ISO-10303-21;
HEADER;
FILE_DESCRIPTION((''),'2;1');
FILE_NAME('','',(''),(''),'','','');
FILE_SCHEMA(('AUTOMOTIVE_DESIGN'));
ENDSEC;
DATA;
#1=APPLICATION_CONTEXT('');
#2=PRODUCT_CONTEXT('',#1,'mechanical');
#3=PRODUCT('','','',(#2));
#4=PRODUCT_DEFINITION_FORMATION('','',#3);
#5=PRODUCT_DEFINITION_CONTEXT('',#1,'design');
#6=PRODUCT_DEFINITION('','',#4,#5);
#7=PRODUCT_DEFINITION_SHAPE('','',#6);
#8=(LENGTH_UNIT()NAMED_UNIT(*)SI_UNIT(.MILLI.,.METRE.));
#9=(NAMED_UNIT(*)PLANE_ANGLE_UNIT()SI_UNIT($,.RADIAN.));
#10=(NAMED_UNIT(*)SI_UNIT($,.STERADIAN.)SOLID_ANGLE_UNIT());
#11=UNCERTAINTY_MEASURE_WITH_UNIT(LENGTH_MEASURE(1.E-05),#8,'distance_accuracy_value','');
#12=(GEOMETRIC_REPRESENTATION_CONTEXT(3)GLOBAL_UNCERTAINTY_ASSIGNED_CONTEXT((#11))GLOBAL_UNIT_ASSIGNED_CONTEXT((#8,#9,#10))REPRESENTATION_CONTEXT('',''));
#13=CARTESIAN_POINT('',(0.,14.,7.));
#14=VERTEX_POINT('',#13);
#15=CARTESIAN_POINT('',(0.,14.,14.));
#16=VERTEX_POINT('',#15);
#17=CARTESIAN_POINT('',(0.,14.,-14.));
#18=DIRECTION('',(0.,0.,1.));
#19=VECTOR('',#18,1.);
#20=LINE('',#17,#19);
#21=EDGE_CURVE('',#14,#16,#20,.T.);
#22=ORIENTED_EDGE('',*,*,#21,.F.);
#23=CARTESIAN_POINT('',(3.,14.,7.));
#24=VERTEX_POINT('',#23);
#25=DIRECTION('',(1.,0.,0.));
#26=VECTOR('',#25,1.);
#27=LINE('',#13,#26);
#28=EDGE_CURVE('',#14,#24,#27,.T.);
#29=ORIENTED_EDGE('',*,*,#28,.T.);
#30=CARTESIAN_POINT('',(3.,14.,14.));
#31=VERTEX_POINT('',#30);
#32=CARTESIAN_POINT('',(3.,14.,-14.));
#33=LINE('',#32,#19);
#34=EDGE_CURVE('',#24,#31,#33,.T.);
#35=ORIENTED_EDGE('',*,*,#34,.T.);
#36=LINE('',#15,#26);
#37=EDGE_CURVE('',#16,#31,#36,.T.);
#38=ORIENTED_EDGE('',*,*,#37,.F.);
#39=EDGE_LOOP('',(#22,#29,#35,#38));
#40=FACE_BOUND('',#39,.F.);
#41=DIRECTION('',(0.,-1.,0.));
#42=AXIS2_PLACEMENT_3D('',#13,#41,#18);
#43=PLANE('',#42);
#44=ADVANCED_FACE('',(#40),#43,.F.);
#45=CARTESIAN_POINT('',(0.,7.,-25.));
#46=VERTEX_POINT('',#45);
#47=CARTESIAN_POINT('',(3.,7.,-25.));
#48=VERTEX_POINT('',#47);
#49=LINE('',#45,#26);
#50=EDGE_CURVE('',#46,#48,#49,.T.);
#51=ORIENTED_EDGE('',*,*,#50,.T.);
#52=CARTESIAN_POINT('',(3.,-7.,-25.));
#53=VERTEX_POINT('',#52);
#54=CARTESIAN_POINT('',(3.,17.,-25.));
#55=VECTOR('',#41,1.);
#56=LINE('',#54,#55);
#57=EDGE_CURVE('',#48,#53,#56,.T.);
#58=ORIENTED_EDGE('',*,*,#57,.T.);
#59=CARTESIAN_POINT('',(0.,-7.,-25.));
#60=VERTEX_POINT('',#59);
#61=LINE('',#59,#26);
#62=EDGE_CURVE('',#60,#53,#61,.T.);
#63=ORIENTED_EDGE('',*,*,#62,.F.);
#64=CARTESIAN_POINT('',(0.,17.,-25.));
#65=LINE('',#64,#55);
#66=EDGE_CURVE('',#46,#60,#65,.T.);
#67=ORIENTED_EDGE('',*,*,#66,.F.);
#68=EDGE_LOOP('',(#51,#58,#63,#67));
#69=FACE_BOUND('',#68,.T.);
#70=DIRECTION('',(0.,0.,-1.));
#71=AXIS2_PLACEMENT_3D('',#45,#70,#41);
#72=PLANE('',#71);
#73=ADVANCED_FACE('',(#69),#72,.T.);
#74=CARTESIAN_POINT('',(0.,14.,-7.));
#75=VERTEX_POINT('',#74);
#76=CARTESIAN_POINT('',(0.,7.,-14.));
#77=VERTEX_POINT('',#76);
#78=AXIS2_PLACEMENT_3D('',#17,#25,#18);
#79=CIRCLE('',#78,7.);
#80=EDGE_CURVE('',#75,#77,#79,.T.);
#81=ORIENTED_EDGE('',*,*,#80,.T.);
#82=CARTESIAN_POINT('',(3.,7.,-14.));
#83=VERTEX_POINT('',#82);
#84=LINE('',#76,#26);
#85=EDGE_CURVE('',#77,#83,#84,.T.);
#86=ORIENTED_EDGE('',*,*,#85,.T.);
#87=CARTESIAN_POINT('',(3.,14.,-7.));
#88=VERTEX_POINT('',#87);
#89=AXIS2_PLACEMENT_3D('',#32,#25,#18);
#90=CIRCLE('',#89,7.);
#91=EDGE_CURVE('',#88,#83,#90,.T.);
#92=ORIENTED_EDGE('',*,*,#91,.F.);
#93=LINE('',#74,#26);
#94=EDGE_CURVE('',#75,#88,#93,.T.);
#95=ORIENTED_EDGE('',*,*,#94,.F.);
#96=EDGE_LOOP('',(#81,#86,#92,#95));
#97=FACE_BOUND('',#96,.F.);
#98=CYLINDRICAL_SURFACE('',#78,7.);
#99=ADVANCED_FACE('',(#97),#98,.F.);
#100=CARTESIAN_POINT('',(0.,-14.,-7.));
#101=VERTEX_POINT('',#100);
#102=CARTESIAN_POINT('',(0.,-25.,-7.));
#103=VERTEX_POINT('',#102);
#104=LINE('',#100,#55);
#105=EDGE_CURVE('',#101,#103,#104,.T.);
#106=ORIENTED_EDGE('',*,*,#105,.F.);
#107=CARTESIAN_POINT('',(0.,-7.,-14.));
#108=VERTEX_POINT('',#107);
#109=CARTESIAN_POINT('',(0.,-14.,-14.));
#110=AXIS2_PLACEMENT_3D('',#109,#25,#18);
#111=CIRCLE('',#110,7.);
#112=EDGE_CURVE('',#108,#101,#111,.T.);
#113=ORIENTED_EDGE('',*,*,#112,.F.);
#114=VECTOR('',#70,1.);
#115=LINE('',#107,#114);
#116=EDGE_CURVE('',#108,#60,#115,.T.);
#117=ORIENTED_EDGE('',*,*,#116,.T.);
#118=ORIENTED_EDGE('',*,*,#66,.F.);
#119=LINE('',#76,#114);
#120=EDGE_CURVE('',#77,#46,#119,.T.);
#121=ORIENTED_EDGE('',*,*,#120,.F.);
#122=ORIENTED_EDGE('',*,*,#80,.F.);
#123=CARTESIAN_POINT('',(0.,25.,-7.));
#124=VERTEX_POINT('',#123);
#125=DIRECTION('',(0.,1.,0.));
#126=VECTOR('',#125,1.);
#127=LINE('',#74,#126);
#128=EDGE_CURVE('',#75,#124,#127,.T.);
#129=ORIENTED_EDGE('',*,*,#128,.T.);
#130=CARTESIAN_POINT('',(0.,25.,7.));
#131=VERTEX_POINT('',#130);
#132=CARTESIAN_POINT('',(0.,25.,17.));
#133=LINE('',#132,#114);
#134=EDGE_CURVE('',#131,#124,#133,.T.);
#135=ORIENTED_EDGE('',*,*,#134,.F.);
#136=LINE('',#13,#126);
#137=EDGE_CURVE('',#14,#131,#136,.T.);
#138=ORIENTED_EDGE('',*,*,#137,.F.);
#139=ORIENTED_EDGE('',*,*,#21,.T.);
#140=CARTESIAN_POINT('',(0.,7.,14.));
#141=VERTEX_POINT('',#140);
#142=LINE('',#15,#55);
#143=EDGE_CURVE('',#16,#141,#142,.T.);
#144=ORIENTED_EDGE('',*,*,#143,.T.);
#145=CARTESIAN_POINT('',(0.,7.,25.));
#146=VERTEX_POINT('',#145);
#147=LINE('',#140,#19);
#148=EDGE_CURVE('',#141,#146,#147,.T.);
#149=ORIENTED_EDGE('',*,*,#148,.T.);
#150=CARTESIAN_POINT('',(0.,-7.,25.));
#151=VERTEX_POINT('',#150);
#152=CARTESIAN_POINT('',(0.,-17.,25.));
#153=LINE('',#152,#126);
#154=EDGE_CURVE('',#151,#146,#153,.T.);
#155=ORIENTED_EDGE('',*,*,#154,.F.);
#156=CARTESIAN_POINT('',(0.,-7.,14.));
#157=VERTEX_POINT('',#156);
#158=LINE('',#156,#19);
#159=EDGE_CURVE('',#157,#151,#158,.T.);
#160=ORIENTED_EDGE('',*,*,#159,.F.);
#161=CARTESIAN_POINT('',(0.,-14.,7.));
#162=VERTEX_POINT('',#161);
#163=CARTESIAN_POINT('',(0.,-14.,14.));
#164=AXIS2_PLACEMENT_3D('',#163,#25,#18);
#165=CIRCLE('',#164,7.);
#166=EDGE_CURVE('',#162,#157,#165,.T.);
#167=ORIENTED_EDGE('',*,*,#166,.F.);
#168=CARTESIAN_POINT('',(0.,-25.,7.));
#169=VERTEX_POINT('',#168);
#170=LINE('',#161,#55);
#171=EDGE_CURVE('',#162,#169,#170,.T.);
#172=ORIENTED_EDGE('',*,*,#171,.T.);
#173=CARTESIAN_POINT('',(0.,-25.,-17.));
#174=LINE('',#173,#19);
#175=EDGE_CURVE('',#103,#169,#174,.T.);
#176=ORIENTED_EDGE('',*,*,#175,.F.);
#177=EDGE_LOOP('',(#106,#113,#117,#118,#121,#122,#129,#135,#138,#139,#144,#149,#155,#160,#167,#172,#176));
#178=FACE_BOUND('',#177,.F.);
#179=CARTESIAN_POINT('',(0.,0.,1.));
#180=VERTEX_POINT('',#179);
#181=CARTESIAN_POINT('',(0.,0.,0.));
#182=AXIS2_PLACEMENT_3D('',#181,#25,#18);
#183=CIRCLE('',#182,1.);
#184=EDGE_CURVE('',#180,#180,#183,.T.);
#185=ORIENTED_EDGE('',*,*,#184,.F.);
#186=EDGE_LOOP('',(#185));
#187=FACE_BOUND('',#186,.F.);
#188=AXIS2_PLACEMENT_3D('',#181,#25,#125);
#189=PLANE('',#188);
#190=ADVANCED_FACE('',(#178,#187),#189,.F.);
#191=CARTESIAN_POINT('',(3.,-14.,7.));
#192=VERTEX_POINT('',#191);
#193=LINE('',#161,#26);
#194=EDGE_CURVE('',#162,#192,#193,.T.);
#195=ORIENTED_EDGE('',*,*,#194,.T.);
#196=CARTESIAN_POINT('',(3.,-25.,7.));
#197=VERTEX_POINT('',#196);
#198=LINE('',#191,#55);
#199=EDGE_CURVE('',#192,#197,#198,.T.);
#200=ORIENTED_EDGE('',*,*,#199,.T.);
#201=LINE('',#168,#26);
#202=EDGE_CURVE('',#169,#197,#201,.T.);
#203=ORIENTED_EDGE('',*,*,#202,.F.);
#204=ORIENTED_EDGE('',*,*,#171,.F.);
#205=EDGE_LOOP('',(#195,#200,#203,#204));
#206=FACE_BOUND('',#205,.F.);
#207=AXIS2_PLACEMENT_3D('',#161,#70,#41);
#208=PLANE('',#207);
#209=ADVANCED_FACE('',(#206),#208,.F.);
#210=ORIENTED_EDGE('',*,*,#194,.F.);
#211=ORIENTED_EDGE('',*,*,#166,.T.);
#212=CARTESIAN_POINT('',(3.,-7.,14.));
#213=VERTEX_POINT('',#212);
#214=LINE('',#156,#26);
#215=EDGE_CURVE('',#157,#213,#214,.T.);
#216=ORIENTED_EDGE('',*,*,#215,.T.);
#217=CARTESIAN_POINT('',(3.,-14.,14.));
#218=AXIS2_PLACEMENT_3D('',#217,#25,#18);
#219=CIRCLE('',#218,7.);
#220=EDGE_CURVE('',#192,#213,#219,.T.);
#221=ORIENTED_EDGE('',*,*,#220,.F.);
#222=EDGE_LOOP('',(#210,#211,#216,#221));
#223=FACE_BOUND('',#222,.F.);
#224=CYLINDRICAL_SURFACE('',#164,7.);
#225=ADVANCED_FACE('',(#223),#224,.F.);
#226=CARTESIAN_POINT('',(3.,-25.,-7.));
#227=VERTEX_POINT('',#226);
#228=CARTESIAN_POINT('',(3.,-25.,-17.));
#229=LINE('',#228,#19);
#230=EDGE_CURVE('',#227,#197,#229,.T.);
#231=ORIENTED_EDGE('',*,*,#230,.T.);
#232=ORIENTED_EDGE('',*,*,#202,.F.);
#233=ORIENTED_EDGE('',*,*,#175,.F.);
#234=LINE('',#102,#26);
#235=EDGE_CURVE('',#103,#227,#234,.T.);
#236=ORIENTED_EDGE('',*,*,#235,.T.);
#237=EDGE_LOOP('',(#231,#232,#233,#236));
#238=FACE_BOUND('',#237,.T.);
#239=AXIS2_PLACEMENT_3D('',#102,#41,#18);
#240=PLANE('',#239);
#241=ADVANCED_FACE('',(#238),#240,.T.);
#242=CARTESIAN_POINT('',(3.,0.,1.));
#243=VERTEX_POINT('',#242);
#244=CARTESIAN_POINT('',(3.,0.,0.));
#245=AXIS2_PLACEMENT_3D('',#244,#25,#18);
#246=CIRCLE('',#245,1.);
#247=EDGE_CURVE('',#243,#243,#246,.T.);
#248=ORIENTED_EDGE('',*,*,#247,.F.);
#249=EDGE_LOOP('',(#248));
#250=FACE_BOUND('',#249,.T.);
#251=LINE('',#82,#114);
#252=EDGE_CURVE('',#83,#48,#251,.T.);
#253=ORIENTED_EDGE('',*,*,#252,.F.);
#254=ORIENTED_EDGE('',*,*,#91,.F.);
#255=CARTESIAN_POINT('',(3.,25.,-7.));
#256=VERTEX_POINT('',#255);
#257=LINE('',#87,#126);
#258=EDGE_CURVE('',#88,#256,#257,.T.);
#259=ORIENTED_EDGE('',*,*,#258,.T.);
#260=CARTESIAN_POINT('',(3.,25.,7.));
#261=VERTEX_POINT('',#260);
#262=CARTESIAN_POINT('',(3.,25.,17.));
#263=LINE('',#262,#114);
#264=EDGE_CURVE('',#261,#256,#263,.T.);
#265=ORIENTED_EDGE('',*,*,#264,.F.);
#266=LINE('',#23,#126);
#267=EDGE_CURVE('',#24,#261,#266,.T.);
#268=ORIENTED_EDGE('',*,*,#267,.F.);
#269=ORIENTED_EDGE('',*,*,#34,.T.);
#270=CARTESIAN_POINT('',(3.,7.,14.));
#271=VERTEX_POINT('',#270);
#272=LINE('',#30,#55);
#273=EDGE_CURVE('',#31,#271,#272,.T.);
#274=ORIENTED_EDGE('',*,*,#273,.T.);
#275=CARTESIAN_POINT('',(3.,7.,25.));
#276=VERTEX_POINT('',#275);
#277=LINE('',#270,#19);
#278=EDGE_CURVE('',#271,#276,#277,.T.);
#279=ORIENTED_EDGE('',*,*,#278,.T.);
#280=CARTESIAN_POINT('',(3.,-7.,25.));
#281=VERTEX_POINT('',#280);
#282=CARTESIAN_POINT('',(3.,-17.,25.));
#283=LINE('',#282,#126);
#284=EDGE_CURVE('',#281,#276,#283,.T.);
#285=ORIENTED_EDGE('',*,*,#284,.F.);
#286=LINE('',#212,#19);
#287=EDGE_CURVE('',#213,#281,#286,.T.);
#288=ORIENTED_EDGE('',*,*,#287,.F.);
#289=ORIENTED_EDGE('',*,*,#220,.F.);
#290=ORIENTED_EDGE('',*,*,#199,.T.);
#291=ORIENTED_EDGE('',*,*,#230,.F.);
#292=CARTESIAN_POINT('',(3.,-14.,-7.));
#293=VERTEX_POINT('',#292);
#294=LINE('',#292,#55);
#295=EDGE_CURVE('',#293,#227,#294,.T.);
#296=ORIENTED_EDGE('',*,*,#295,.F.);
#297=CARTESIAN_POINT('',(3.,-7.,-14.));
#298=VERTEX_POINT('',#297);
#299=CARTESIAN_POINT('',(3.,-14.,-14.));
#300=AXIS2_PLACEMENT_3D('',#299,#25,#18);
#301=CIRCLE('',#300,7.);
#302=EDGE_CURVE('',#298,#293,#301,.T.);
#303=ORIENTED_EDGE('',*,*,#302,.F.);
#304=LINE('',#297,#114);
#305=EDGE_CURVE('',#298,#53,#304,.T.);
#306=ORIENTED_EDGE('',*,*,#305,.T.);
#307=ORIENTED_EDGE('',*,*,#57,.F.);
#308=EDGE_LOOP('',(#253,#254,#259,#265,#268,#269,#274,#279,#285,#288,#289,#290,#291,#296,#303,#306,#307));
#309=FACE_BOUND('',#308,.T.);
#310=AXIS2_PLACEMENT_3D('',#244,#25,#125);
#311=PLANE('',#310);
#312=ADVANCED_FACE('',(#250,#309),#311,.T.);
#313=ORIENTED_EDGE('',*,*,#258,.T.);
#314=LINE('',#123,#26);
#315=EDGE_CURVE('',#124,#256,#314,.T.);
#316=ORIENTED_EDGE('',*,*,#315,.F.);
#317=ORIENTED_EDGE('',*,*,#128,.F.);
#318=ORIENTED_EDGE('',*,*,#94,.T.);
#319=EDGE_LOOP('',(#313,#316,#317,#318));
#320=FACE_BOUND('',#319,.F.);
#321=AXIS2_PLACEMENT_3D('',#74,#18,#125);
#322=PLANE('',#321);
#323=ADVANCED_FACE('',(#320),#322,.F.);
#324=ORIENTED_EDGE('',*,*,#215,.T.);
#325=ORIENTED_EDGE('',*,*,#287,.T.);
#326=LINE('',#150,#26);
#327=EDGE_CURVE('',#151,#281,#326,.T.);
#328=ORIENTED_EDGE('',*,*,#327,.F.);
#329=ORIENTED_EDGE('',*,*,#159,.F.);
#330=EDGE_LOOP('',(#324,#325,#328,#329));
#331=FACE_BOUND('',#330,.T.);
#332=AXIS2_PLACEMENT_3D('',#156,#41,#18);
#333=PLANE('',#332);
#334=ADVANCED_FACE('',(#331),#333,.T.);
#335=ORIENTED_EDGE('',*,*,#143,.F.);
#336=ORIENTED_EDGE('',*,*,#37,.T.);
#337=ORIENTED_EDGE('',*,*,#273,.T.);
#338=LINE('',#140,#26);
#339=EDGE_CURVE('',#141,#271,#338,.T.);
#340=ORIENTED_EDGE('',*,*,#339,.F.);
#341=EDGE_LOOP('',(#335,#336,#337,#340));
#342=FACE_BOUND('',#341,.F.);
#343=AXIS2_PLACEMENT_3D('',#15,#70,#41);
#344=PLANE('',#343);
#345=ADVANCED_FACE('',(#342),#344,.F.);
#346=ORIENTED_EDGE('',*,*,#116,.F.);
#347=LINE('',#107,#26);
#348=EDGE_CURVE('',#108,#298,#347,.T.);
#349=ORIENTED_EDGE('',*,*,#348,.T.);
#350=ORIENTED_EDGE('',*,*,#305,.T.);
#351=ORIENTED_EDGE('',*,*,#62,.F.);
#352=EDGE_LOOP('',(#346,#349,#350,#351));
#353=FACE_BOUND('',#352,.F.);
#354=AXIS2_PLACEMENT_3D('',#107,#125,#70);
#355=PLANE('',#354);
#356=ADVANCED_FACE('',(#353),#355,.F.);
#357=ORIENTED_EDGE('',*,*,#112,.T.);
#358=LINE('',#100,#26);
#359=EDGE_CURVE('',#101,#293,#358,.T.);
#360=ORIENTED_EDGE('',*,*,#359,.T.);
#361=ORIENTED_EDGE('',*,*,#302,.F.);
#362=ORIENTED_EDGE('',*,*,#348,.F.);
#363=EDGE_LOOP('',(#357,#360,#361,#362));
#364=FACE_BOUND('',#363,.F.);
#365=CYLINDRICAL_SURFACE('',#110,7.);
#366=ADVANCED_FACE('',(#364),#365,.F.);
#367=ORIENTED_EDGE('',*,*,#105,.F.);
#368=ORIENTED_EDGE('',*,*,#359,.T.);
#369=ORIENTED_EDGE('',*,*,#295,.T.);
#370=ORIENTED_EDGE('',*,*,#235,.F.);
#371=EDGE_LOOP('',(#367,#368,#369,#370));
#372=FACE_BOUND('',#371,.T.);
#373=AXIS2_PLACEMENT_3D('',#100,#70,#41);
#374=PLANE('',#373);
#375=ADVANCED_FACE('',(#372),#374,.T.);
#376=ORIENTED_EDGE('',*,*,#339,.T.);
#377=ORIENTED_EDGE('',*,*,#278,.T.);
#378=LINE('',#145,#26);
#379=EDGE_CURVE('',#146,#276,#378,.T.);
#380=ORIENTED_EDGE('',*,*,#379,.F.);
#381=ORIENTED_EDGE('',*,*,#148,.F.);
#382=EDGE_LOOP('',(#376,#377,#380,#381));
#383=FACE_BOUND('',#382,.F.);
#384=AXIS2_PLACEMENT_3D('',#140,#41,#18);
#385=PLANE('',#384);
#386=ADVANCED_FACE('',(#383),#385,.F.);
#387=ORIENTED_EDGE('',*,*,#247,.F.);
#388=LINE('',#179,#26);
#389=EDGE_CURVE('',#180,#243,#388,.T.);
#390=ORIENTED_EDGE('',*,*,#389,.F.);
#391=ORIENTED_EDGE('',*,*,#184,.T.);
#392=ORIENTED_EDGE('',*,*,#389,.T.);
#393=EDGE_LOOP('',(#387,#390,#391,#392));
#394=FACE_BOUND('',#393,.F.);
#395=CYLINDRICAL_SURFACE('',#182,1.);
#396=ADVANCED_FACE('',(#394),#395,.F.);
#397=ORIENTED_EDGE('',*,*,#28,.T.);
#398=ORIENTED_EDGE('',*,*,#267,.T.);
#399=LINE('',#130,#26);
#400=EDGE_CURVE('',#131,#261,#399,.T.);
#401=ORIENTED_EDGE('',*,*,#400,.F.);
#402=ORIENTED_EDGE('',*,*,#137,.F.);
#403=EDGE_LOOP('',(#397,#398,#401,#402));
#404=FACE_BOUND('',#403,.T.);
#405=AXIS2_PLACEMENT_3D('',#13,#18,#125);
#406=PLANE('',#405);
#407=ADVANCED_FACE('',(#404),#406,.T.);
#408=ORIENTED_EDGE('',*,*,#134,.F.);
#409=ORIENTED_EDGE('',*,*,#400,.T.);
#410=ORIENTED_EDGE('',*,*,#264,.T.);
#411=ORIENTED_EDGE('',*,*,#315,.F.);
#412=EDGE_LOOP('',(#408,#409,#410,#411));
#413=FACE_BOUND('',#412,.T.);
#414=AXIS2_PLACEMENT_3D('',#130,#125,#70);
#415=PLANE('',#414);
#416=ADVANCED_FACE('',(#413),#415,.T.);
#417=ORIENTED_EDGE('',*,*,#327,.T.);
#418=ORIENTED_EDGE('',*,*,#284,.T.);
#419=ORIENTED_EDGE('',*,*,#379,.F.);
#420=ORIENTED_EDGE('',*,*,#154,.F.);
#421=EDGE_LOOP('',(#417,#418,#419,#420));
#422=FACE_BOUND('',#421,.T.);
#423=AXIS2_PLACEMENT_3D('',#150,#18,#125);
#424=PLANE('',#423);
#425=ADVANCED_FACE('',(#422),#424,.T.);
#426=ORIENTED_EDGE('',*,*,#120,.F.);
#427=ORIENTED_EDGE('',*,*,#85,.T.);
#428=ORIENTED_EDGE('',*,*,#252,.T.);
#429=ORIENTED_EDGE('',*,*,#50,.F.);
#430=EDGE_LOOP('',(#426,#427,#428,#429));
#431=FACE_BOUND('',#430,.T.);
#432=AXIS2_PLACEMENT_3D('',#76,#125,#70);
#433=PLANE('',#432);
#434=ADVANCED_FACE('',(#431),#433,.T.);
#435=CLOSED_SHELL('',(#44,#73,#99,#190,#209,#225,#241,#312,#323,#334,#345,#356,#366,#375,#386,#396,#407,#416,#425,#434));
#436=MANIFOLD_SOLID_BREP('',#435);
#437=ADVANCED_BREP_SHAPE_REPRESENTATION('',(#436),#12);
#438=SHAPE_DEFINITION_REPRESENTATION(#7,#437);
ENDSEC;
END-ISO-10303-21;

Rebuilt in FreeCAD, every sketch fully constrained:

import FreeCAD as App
import Part
import Sketcher
from FreeCAD import Vector


def add_polygon(sketch, points):
    """Adds a closed chain of lines whose ends are joined by coincident constraints."""
    first, n = sketch.GeometryCount, len(points)
    for a, b in zip(points, points[1:] + points[:1]):
        sketch.addGeometry(Part.LineSegment(App.Vector(*a, 0), App.Vector(*b, 0)), False)
    for i in range(n):
        sketch.addConstraint(Sketcher.Constraint("Coincident", first + i, 2, first + (i + 1) % n, 1))

doc = App.newDocument("Part")
body = doc.addObject("PartDesign::Body", "Body")

sketch1 = body.newObject("Sketcher::SketchObject", "Sketch")
sketch1.AttachmentSupport = (doc.getObject("YZ_Plane"), [""])
sketch1.MapMode = "FlatFace"
add_polygon(sketch1, [(14, 7), (14, 14), (7, 14), (7, 25), (-7, 25), (-7, 14), (-14, 14), (-14, 7), (-25, 7), (-25, -7), (-14, -7), (-14, -14), (-7, -14), (-7, -25), (7, -25), (7, -14), (14, -14), (14, -7), (25, -7), (25, 7)])
sketch1.addConstraint([
    Sketcher.Constraint("Vertical", 0),
    Sketcher.Constraint("Horizontal", 1),
    Sketcher.Constraint("Vertical", 2),
    Sketcher.Constraint("Horizontal", 3),
    Sketcher.Constraint("Vertical", 4),
    Sketcher.Constraint("Horizontal", 5),
    Sketcher.Constraint("Vertical", 6),
    Sketcher.Constraint("Horizontal", 7),
    Sketcher.Constraint("Vertical", 8),
    Sketcher.Constraint("Horizontal", 9),
    Sketcher.Constraint("Vertical", 10),
    Sketcher.Constraint("Horizontal", 11),
    Sketcher.Constraint("Vertical", 12),
    Sketcher.Constraint("Horizontal", 13),
    Sketcher.Constraint("Vertical", 14),
    Sketcher.Constraint("Horizontal", 15),
    Sketcher.Constraint("Vertical", 16),
    Sketcher.Constraint("Horizontal", 17),
    Sketcher.Constraint("Vertical", 18),
    Sketcher.Constraint("Horizontal", 19),
    Sketcher.Constraint("Symmetric", 0, 2, 10, 2, -1, 1),
    Sketcher.Constraint("Symmetric", 2, 2, 12, 2, -1, 1),
    Sketcher.Constraint("Symmetric", 4, 2, 14, 2, -1, 1),
    Sketcher.Constraint("Symmetric", 6, 2, 16, 2, -1, 1),
    Sketcher.Constraint("Symmetric", 8, 2, 18, 2, -1, 1),
    Sketcher.Constraint("Symmetric", 1, 2, 4, 2, -2),
    Sketcher.Constraint("Symmetric", 9, 2, 16, 2, -2),
    Sketcher.Constraint("Equal", 15, 0),
    Sketcher.Constraint("Equal", 19, 2),
    Sketcher.Constraint("Equal", 13, 8),
    Sketcher.Constraint("DistanceX", 5, 2, 0, 2, 28.0),
    Sketcher.Constraint("DistanceX", 1, 2, 1, 1, 7.0),
    Sketcher.Constraint("DistanceX", 7, 2, 7, 1, 11.0),
])
pad1 = body.newObject("PartDesign::Pad", "Pad")
pad1.Profile = sketch1
pad1.Length = 3

sketch2 = body.newObject("Sketcher::SketchObject", "Sketch001")
sketch2.AttachmentSupport = (doc.getObject("YZ_Plane"), [""])
sketch2.MapMode = "FlatFace"
sketch2.addGeometry([
    Part.Circle(Vector(14, -14, 0), Vector(0, 0, 1), 7),
    Part.Circle(Vector(-14, -14, 0), Vector(0, 0, 1), 7),
    Part.Circle(Vector(-14, 14, 0), Vector(0, 0, 1), 7),
], False)
sketch2.addConstraint([
    Sketcher.Constraint("Equal", 0, 1),
    Sketcher.Constraint("Equal", 1, 2),
    Sketcher.Constraint("Symmetric", 0, 3, 2, 3, -1, 1),
    Sketcher.Constraint("Symmetric", 0, 3, 1, 3, -2),
    Sketcher.Constraint("Diameter", 0, 14.0),
    Sketcher.Constraint("DistanceX", -1, 1, 0, 3, 14.0),
    Sketcher.Constraint("DistanceY", 0, 3, -1, 1, 14.0),
])
doc.recompute()
hole = body.newObject("PartDesign::Hole", "Hole")
hole.Profile = sketch2
hole.ThreadType = "None"
hole.Diameter = 14
hole.DepthType = "ThroughAll"
hole.Reversed = True

sketch3 = body.newObject("Sketcher::SketchObject", "Sketch002")
sketch3.AttachmentSupport = (doc.getObject("YZ_Plane"), [""])
sketch3.MapMode = "FlatFace"
sketch3.addGeometry(Part.Circle(Vector(0, 0, 0), Vector(0, 0, 1), 1), False)
sketch3.addConstraint([
    Sketcher.Constraint("Coincident", 0, 3, -1, 1),
    Sketcher.Constraint("Diameter", 0, 2.0),
])
doc.recompute()
hole2 = body.newObject("PartDesign::Hole", "Hole001")
hole2.Profile = sketch3
hole2.ThreadType = "None"
hole2.Diameter = 2
hole2.DepthType = "ThroughAll"
hole2.Reversed = True

doc.recompute()
